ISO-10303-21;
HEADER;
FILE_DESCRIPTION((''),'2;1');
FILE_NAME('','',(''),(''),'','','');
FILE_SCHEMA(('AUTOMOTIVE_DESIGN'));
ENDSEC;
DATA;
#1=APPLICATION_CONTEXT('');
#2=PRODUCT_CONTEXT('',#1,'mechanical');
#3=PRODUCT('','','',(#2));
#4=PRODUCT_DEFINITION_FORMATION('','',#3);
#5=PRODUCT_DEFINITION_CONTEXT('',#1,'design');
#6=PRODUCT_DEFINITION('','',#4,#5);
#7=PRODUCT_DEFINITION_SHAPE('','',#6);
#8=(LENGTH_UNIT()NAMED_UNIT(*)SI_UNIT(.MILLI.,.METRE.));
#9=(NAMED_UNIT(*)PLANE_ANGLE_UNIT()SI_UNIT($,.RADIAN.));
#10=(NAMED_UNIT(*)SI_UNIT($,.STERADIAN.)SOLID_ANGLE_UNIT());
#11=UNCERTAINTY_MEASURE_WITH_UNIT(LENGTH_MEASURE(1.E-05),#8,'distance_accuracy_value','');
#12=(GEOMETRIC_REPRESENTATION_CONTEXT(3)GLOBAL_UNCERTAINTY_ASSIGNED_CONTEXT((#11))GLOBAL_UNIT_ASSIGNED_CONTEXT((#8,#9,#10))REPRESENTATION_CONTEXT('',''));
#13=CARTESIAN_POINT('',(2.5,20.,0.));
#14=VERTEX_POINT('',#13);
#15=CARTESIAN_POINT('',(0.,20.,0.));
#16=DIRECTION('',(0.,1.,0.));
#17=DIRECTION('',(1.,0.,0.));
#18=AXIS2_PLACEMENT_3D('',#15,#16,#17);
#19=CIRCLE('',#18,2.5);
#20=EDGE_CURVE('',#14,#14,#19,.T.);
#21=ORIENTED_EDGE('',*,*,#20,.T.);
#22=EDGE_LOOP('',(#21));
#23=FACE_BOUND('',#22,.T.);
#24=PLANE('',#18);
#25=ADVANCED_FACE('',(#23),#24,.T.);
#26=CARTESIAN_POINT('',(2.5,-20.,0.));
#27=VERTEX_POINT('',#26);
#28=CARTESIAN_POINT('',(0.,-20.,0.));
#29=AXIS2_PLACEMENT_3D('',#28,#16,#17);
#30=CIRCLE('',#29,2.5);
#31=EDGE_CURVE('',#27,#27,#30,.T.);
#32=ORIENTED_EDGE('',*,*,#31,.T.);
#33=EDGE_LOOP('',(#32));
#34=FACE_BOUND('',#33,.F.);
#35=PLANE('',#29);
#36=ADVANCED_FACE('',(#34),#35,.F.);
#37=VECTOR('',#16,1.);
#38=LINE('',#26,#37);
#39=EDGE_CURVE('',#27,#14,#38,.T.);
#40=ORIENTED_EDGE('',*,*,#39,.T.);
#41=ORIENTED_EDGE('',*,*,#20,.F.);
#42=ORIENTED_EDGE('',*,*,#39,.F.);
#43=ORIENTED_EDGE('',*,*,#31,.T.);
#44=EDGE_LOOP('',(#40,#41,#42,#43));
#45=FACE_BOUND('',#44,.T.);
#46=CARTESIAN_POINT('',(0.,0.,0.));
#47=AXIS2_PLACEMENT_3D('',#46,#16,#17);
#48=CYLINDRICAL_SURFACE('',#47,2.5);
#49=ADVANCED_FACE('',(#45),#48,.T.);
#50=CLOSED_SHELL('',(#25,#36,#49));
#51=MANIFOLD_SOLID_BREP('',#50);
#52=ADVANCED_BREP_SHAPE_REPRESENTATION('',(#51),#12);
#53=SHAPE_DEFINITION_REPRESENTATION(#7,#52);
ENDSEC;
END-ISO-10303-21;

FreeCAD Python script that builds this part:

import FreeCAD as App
import Part
import Sketcher

V = App.Vector

doc = App.newDocument("Part")
body = doc.addObject("PartDesign::Body", "Body")

# Sketch on XZ plane
sketch1 = body.newObject("Sketcher::SketchObject", "Sketch")
sketch1.AttachmentSupport = (doc.getObject("XZ_Plane"), [""])
sketch1.MapMode = "FlatFace"
sketch1.addGeometry(Part.Circle(V(0, 0, 0), V(0, 0, 1), 2.5), False)
sketch1.addConstraint([
    Sketcher.Constraint("Coincident", 0, 3, -1, 1),
    Sketcher.Constraint("Diameter", 0, 5.0),
])
pad1 = body.newObject("PartDesign::Pad", "Pad")
pad1.Profile = sketch1
pad1.Length = 40
pad1.Midplane = True

doc.recompute()
